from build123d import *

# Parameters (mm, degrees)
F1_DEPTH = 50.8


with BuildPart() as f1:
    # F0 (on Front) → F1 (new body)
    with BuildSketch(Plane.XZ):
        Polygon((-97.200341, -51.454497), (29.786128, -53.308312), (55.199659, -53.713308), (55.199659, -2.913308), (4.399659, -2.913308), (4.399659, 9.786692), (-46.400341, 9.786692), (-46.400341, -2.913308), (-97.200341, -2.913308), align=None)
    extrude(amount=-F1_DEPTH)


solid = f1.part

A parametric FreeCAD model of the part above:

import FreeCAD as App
import Part
import Sketcher
Q = App.Units.Quantity


def add_polygon(sketch, points):
    """Adds a closed chain of lines whose ends are joined by coincident constraints."""
    first, n = sketch.GeometryCount, len(points)
    for a, b in zip(points, points[1:] + points[:1]):
        sketch.addGeometry(Part.LineSegment(App.Vector(*a, 0), App.Vector(*b, 0)), False)
    for i in range(n):
        sketch.addConstraint(Sketcher.Constraint("Coincident", first + i, 2, first + (i + 1) % n, 1))

doc = App.newDocument("Part")
body = doc.addObject("PartDesign::Body", "Body")

sketch1 = body.newObject("Sketcher::SketchObject", "Sketch")
sketch1.AttachmentSupport = (doc.getObject("XZ_Plane"), [""])
sketch1.MapMode = "FlatFace"
add_polygon(sketch1, [(-97.200341, -51.454497), (29.786128, -53.308312), (55.199659, -53.713308), (55.199659, -2.913308), (4.399659, -2.913308), (4.399659, 9.786692), (-46.400341, 9.786692), (-46.400341, -2.913308), (-97.200341, -2.913308)])
sketch1.addConstraint(Sketcher.Constraint("Vertical", 2))
sketch1.addConstraint(Sketcher.Constraint("Horizontal", 3))
sketch1.addConstraint(Sketcher.Constraint("Vertical", 4))
sketch1.addConstraint(Sketcher.Constraint("Horizontal", 5))
sketch1.addConstraint(Sketcher.Constraint("Vertical", 6))
sketch1.addConstraint(Sketcher.Constraint("Horizontal", 7))
sketch1.addConstraint(Sketcher.Constraint("Vertical", 8))
sketch1.addConstraint(Sketcher.Constraint("Horizontal", 3, 2, 6, 2))
sketch1.addConstraint(Sketcher.Constraint("Equal", 3, 5))
sketch1.addConstraint(Sketcher.Constraint("Equal", 5, 7))
sketch1.addConstraint(Sketcher.Constraint("Equal", 7, 2))
sketch1.addConstraint(Sketcher.Constraint("DistanceX", 3, 2, 3, 1, Q("2 in")))
sketch1.addConstraint(Sketcher.Constraint("Distance", 0, Q("5 in")))
sketch1.addConstraint(Sketcher.Constraint("DistanceY", 4, 1, 4, 2, Q("0.5 in")))
sketch1.addConstraint(Sketcher.Constraint("DistanceY", 8, 2, 8, 1, Q("48.541189 mm")))
sketch1.addConstraint(Sketcher.Constraint("DistanceX", -1, 1, 0, 2, Q("29.786128 mm")))
sketch1.addConstraint(Sketcher.Constraint("DistanceX", -1, 1, 1, 2, Q("55.199659 mm")))
sketch1.addConstraint(Sketcher.Constraint("DistanceY", 0, 2, -1, 1, Q("53.308312 mm")))
pad1 = body.newObject("PartDesign::Pad", "Pad")
pad1.Profile = sketch1
pad1.Length = Q("2 in")
pad1.Reversed = True

doc.recompute()
